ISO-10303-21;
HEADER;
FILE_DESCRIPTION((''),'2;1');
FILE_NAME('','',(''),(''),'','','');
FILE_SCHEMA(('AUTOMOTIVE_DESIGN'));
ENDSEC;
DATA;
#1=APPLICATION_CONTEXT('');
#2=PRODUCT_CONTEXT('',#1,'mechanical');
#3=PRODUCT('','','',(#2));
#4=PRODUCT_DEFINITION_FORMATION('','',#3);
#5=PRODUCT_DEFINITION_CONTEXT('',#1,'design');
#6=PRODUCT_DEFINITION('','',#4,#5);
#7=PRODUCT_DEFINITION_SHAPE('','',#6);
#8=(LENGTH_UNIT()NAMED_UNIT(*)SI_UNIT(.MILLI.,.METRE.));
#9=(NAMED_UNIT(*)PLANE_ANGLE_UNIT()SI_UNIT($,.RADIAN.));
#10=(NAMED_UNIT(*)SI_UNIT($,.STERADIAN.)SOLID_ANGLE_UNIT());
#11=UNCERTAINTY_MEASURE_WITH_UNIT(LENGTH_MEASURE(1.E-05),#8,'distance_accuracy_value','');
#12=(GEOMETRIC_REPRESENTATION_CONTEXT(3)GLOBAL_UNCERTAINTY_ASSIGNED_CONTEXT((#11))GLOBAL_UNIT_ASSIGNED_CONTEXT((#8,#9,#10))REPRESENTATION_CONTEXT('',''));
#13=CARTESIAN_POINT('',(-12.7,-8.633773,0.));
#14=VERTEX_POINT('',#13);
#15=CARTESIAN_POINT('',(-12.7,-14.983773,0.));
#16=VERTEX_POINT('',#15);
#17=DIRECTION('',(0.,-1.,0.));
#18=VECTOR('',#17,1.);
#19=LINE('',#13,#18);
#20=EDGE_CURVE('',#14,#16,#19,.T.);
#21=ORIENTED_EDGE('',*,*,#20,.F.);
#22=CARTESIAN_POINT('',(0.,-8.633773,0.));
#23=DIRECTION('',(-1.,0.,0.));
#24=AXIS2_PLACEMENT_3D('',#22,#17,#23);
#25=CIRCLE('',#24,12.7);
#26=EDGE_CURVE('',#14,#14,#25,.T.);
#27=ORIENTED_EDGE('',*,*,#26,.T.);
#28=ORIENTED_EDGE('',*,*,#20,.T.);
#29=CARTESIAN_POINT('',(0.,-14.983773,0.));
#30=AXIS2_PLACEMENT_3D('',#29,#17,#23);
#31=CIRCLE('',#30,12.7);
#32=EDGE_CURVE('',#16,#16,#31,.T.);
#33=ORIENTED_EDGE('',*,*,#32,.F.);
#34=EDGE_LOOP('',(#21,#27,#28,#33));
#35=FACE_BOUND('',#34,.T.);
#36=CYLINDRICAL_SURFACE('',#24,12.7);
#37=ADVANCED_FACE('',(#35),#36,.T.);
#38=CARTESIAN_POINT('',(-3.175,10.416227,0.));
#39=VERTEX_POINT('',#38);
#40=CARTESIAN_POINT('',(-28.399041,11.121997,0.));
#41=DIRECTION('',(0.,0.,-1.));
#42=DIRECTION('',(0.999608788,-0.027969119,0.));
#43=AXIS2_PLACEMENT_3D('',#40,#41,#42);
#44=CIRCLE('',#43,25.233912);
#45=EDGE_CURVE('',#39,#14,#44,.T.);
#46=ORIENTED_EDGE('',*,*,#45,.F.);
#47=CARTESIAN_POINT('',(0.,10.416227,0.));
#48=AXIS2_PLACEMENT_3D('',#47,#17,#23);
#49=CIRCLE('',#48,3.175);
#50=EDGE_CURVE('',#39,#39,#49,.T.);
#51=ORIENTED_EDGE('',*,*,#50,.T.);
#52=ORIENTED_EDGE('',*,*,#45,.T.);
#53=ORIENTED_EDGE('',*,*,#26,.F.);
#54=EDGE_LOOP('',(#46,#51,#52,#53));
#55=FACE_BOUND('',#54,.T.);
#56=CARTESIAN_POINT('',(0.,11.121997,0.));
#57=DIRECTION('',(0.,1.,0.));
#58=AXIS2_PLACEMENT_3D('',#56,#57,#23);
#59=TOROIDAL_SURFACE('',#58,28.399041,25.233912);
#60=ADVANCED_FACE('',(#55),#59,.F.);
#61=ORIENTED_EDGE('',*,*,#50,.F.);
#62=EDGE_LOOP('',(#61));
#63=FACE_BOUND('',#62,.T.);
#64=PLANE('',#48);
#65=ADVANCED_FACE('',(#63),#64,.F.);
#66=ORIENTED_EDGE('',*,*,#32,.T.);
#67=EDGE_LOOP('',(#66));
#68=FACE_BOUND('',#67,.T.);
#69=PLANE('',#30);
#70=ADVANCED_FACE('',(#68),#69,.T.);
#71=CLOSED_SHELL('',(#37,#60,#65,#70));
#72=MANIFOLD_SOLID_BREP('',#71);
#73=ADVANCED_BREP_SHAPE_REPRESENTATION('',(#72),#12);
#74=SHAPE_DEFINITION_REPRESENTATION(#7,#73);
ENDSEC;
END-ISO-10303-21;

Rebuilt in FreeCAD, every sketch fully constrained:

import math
import FreeCAD as App
import Part
import Sketcher

V = App.Vector
Q = App.Units.Quantity

doc = App.newDocument("Part")
body = doc.addObject("PartDesign::Body", "Body")

sketch1 = body.newObject("Sketcher::SketchObject", "Sketch")
sketch1.AttachmentSupport = (doc.getObject("XY_Plane"), [""])
sketch1.MapMode = "FlatFace"
sketch1.addGeometry(Part.LineSegment(V(0, -15, 0), V(0, 10.4, 0)), False)
sketch1.addGeometry(Part.LineSegment(V(0, 10.4, 0), V(-3.2, 10.4, 0)), False)
sketch1.addGeometry(Part.ArcOfCircle(Part.Circle(V(-28.4, 11.1, 0), V(0, 0, 1), 25.2), math.radians(-52), math.radians(-2)), False)
sketch1.addGeometry(Part.LineSegment(V(-12.7, -8.6, 0), V(-12.7, -15, 0)), False)
sketch1.addGeometry(Part.LineSegment(V(-12.7, -15, 0), V(0, -15, 0)), False)
sketch1.addConstraint(Sketcher.Constraint("Coincident", 0, 2, 1, 1))
sketch1.addConstraint(Sketcher.Constraint("Coincident", 1, 2, 2, 2))
sketch1.addConstraint(Sketcher.Constraint("Coincident", 2, 1, 3, 1))
sketch1.addConstraint(Sketcher.Constraint("Coincident", 3, 2, 4, 1))
sketch1.addConstraint(Sketcher.Constraint("Coincident", 4, 2, 0, 1))
sketch1.addConstraint(Sketcher.Constraint("Vertical", 0))
sketch1.addConstraint(Sketcher.Constraint("Horizontal", 1))
sketch1.addConstraint(Sketcher.Constraint("Vertical", 3))
sketch1.addConstraint(Sketcher.Constraint("Horizontal", 4))
sketch1.addConstraint(Sketcher.Constraint("PointOnObject", 0, 2, -2))
sketch1.addConstraint(Sketcher.Constraint("DistanceY", 0, 1, 0, 2, Q("1 in")))
sketch1.addConstraint(Sketcher.Constraint("DistanceX", 4, 1, 4, 2, Q("0.5 in")))
sketch1.addConstraint(Sketcher.Constraint("DistanceY", 3, 2, 3, 1, Q("0.25 in")))
sketch1.addConstraint(Sketcher.Constraint("DistanceX", 1, 2, 1, 1, Q("0.125 in")))
sketch1.addConstraint(Sketcher.Constraint("Radius", 2, 25.233912))
sketch1.addConstraint(Sketcher.Constraint("DistanceY", -1, 1, 2, 3, 11.121997))
revolution = body.newObject("PartDesign::Revolution", "Revolution")
revolution.Profile = sketch1
revolution.ReferenceAxis = (sketch1, ["V_Axis"])
revolution.Angle = 360

doc.recompute()
